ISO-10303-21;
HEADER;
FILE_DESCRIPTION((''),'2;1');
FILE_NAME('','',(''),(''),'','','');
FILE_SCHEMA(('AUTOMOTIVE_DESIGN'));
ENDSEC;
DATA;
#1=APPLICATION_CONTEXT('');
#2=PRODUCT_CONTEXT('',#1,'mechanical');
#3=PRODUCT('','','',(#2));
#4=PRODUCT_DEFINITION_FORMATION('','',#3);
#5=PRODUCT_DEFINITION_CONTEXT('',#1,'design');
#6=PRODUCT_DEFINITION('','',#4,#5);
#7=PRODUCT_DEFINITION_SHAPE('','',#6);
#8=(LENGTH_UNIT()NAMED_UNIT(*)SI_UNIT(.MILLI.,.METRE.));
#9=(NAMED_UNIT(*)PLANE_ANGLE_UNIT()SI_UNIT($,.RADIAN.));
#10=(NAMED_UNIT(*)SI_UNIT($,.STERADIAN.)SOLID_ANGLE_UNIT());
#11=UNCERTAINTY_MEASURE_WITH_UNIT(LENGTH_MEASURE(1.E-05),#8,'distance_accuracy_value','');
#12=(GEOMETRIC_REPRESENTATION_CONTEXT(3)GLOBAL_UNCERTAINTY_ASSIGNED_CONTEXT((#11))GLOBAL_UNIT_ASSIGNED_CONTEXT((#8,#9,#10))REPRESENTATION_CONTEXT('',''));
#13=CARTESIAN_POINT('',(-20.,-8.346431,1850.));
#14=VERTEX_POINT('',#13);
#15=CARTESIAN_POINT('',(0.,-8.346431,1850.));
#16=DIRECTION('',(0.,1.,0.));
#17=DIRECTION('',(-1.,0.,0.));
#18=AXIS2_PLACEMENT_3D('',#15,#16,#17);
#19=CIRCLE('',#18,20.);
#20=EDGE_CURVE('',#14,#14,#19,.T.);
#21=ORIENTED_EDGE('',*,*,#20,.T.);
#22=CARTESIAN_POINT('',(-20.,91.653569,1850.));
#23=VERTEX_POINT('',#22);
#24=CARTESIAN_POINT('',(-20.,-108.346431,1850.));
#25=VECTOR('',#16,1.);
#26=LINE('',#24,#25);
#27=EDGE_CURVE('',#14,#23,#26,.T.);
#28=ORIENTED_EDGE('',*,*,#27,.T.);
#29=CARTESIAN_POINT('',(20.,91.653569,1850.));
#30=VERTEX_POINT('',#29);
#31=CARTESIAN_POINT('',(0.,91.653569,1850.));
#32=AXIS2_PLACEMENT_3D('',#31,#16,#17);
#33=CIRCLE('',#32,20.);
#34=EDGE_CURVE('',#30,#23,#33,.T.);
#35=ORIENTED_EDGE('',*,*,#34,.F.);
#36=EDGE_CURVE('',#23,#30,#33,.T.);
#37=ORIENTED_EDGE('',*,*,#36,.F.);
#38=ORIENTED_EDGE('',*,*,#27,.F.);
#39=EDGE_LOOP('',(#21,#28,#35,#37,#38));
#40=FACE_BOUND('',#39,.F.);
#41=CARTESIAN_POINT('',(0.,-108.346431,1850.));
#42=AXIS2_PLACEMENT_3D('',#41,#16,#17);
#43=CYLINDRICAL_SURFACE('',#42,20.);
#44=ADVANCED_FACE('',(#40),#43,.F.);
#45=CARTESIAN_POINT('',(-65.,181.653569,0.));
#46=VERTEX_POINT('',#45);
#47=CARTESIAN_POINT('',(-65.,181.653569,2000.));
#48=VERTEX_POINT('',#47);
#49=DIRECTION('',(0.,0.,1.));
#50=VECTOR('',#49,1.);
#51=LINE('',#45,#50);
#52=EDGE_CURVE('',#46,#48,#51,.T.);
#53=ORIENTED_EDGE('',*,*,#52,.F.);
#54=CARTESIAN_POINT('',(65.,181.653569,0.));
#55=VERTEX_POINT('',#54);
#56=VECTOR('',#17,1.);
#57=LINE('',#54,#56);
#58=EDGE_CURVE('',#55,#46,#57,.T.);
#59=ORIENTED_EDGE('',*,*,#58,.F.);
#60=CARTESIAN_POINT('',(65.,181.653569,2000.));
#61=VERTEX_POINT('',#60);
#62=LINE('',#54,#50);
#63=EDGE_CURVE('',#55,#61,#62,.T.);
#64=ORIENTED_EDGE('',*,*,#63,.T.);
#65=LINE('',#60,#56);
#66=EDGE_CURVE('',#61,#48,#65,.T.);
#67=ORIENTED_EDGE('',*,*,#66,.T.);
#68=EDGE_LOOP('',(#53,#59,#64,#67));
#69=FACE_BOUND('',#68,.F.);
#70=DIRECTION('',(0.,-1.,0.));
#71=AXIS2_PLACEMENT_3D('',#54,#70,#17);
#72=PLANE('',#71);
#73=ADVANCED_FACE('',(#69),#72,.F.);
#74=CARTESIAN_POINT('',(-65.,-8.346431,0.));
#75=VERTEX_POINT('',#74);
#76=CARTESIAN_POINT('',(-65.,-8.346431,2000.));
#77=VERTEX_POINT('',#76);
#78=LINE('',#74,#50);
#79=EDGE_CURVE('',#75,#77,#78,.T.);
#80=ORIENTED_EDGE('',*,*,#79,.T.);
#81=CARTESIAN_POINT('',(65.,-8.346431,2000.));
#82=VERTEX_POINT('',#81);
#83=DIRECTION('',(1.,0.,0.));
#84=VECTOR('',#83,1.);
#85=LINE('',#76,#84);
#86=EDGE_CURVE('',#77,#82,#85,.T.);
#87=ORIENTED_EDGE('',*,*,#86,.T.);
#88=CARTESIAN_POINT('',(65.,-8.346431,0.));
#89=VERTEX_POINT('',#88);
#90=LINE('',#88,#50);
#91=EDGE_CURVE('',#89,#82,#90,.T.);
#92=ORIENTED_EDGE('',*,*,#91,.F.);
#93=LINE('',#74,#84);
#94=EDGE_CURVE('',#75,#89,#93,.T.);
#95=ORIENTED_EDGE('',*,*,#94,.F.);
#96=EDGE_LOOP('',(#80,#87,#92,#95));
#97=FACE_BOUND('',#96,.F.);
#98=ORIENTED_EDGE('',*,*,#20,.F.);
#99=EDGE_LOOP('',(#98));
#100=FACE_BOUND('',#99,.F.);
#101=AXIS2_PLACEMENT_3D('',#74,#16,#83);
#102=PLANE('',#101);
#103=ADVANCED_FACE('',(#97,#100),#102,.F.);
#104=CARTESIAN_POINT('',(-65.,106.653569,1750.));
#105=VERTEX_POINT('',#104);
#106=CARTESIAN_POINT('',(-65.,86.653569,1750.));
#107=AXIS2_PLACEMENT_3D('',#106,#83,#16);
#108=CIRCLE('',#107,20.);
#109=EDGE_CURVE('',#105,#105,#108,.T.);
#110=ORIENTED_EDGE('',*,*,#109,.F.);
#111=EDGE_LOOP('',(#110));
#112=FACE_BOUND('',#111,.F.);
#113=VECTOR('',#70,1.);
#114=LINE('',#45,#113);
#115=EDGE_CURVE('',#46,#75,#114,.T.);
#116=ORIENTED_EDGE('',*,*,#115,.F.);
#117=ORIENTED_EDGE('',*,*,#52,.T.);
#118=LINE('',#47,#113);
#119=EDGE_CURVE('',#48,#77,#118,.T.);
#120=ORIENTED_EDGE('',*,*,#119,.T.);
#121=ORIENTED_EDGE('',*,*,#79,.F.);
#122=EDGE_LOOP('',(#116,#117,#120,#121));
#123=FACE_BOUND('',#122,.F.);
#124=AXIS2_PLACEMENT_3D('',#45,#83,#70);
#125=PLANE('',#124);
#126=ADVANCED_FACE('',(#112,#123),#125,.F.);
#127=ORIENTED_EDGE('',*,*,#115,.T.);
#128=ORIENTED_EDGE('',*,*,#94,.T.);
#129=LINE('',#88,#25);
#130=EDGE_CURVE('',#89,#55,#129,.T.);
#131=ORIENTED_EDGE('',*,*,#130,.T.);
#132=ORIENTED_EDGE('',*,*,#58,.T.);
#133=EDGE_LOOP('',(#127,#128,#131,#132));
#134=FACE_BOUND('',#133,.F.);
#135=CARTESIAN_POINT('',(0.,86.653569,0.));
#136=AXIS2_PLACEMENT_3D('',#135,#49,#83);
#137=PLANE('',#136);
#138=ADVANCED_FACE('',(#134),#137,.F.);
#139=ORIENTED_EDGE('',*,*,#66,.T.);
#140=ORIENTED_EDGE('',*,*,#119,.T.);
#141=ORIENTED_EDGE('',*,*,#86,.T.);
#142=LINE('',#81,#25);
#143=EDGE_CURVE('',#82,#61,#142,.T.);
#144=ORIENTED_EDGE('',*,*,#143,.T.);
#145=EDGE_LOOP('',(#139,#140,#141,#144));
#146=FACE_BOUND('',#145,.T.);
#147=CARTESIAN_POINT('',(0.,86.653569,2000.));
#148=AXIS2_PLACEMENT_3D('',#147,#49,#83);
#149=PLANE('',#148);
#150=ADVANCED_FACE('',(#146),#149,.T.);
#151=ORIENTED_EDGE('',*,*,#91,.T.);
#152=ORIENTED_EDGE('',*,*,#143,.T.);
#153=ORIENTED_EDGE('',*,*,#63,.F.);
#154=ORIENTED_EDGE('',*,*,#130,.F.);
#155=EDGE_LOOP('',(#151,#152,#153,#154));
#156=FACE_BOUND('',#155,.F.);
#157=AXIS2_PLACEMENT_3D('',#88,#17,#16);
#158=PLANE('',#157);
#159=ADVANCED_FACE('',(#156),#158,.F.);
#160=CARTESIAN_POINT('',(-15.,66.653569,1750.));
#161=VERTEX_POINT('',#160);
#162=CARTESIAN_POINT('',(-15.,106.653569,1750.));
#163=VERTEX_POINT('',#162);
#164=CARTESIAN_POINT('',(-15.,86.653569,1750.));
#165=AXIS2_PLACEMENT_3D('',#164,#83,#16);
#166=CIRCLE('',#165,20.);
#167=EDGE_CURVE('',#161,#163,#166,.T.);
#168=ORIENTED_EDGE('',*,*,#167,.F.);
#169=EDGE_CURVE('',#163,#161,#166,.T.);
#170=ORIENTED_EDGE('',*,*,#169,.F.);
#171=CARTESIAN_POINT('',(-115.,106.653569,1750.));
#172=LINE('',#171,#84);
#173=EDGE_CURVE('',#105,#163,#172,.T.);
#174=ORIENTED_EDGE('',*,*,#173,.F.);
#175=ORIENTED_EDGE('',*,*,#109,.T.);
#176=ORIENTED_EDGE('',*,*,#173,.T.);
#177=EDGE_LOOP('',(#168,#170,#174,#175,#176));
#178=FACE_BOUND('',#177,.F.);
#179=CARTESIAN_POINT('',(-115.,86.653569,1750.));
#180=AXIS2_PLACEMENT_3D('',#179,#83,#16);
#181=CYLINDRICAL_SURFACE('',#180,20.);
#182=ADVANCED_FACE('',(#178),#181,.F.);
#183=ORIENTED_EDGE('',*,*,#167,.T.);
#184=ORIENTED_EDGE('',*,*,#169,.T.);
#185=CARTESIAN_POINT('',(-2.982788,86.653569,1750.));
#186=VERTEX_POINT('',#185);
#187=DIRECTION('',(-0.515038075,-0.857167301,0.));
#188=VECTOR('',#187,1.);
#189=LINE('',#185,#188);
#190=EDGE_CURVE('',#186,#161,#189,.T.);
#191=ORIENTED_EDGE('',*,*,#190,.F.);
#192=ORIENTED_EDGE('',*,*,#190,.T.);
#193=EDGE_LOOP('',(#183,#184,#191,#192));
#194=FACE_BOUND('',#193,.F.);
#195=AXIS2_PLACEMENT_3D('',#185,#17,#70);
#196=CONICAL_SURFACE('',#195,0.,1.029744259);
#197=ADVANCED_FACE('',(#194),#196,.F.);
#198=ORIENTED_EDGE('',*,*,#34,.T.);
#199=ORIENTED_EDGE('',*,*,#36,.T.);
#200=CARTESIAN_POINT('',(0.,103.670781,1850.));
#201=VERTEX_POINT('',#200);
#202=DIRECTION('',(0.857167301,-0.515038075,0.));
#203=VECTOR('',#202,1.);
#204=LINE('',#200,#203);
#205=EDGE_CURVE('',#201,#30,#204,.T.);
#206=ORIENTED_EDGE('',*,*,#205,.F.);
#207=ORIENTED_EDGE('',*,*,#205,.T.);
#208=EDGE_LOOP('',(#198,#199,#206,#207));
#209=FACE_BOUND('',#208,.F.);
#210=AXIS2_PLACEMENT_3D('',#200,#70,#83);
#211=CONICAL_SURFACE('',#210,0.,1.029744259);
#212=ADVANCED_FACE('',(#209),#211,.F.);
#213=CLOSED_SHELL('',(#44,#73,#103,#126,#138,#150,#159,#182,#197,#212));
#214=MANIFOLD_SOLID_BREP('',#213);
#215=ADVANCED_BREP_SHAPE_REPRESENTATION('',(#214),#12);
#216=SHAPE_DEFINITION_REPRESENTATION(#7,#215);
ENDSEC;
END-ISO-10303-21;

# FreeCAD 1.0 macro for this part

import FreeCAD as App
import Part
import Sketcher
Q = App.Units.Quantity


def add_polygon(sketch, points):
    """Adds a closed chain of lines whose ends are joined by coincident constraints."""
    first, n = sketch.GeometryCount, len(points)
    for a, b in zip(points, points[1:] + points[:1]):
        sketch.addGeometry(Part.LineSegment(App.Vector(*a, 0), App.Vector(*b, 0)), False)
    for i in range(n):
        sketch.addConstraint(Sketcher.Constraint("Coincident", first + i, 2, first + (i + 1) % n, 1))

doc = App.newDocument("Part")
params = doc.addObject("Spreadsheet::Sheet", "Params")
for row, (alias, value) in enumerate([
    ("sketch1_width", "130 mm"),
    ("sketch1_height", "190 mm"),
    ("pad1_length", "2000 mm"),
    ("sketch2_diameter", "40 mm"),
    ("hole_diameter", "40 mm"),
    ("hole_depth", "100 mm"),
    ("sketch3_diameter", "40 mm"),
    ("hole2_diameter", "40 mm"),
    ("hole2_depth", "50 mm"),
], start=1):
    params.set(f"A{row}", alias)
    params.set(f"B{row}", "=" + value)
    params.setAlias(f"B{row}", alias)

body = doc.addObject("PartDesign::Body", "Body")

# Sketch on XY plane
sketch1 = body.newObject("Sketcher::SketchObject", "Sketch")
sketch1.AttachmentSupport = (doc.getObject("XY_Plane"), [""])
sketch1.MapMode = "FlatFace"
add_polygon(sketch1, [(-65, 181.653569), (-65, -8.346431), (65, -8.346431), (65, 181.653569)])  # lines 0-3
sketch1.addConstraint([
    Sketcher.Constraint("Vertical", 0),
    Sketcher.Constraint("Horizontal", 1),
    Sketcher.Constraint("Vertical", 2),
    Sketcher.Constraint("Horizontal", 3),
    Sketcher.Constraint("DistanceX", 1, 1, 1, 2, Q("130 mm")),
    Sketcher.Constraint("DistanceY", 0, 2, 0, 1, Q("190 mm")),
    Sketcher.Constraint("DistanceX", 0, 2, -1, 1, Q("65 mm")),
    Sketcher.Constraint("DistanceY", 0, 2, -1, 1, Q("8.346431 mm")),
])
sketch1.setExpression("Constraints[8]", "Params.sketch1_width")
sketch1.setExpression("Constraints[9]", "Params.sketch1_height")
pad1 = body.newObject("PartDesign::Pad", "Pad")
pad1.Profile = sketch1
pad1.setExpression("Length", "Params.pad1_length")

# Sketch on XZ plane
sketch2 = body.newObject("Sketcher::SketchObject", "Sketch001")
sketch2.AttachmentSupport = (doc.getObject("XZ_Plane"), [""])
sketch2.MapMode = "FlatFace"
sketch2.AttachmentOffset = App.Placement(App.Vector(0, 0, 8.346431), App.Rotation())
sketch2.addGeometry(Part.Circle(App.Vector(0, 1850, 0), App.Vector(0, 0, 1), 20), False)
sketch2.addConstraint([
    Sketcher.Constraint("PointOnObject", 0, 3, -2),
    Sketcher.Constraint("Diameter", 0, Q("40 mm")),
    Sketcher.Constraint("DistanceY", -1, 1, 0, 3, Q("1850 mm")),
])
sketch2.setExpression("Constraints[1]", "Params.sketch2_diameter")
doc.recompute()
hole = body.newObject("PartDesign::Hole", "Hole")
hole.Profile = sketch2
hole.ThreadType = "None"
hole.setExpression("Diameter", "Params.hole_diameter")
hole.DepthType = "Dimension"
hole.setExpression("Depth", "Params.hole_depth")
hole.DrillPoint = "Angled"
hole.DrillPointAngle = 118

# Sketch on YZ plane
sketch3 = body.newObject("Sketcher::SketchObject", "Sketch002")
sketch3.AttachmentSupport = (doc.getObject("YZ_Plane"), [""])
sketch3.MapMode = "FlatFace"
sketch3.AttachmentOffset = App.Placement(App.Vector(0, 0, -65), App.Rotation())
sketch3.addGeometry(Part.Circle(App.Vector(86.653569, 1750, 0), App.Vector(0, 0, 1), 20), False)
sketch3.addConstraint([
    Sketcher.Constraint("Diameter", 0, Q("40 mm")),
    Sketcher.Constraint("DistanceY", -1, 1, 0, 3, Q("1750 mm")),
    Sketcher.Constraint("DistanceX", -1, 1, 0, 3, Q("86.653569 mm")),
])
sketch3.setExpression("Constraints[0]", "Params.sketch3_diameter")
doc.recompute()
hole2 = body.newObject("PartDesign::Hole", "Hole001")
hole2.Profile = sketch3
hole2.ThreadType = "None"
hole2.setExpression("Diameter", "Params.hole2_diameter")
hole2.DepthType = "Dimension"
hole2.setExpression("Depth", "Params.hole2_depth")
hole2.DrillPoint = "Angled"
hole2.DrillPointAngle = 118
hole2.Reversed = True

doc.recompute()
